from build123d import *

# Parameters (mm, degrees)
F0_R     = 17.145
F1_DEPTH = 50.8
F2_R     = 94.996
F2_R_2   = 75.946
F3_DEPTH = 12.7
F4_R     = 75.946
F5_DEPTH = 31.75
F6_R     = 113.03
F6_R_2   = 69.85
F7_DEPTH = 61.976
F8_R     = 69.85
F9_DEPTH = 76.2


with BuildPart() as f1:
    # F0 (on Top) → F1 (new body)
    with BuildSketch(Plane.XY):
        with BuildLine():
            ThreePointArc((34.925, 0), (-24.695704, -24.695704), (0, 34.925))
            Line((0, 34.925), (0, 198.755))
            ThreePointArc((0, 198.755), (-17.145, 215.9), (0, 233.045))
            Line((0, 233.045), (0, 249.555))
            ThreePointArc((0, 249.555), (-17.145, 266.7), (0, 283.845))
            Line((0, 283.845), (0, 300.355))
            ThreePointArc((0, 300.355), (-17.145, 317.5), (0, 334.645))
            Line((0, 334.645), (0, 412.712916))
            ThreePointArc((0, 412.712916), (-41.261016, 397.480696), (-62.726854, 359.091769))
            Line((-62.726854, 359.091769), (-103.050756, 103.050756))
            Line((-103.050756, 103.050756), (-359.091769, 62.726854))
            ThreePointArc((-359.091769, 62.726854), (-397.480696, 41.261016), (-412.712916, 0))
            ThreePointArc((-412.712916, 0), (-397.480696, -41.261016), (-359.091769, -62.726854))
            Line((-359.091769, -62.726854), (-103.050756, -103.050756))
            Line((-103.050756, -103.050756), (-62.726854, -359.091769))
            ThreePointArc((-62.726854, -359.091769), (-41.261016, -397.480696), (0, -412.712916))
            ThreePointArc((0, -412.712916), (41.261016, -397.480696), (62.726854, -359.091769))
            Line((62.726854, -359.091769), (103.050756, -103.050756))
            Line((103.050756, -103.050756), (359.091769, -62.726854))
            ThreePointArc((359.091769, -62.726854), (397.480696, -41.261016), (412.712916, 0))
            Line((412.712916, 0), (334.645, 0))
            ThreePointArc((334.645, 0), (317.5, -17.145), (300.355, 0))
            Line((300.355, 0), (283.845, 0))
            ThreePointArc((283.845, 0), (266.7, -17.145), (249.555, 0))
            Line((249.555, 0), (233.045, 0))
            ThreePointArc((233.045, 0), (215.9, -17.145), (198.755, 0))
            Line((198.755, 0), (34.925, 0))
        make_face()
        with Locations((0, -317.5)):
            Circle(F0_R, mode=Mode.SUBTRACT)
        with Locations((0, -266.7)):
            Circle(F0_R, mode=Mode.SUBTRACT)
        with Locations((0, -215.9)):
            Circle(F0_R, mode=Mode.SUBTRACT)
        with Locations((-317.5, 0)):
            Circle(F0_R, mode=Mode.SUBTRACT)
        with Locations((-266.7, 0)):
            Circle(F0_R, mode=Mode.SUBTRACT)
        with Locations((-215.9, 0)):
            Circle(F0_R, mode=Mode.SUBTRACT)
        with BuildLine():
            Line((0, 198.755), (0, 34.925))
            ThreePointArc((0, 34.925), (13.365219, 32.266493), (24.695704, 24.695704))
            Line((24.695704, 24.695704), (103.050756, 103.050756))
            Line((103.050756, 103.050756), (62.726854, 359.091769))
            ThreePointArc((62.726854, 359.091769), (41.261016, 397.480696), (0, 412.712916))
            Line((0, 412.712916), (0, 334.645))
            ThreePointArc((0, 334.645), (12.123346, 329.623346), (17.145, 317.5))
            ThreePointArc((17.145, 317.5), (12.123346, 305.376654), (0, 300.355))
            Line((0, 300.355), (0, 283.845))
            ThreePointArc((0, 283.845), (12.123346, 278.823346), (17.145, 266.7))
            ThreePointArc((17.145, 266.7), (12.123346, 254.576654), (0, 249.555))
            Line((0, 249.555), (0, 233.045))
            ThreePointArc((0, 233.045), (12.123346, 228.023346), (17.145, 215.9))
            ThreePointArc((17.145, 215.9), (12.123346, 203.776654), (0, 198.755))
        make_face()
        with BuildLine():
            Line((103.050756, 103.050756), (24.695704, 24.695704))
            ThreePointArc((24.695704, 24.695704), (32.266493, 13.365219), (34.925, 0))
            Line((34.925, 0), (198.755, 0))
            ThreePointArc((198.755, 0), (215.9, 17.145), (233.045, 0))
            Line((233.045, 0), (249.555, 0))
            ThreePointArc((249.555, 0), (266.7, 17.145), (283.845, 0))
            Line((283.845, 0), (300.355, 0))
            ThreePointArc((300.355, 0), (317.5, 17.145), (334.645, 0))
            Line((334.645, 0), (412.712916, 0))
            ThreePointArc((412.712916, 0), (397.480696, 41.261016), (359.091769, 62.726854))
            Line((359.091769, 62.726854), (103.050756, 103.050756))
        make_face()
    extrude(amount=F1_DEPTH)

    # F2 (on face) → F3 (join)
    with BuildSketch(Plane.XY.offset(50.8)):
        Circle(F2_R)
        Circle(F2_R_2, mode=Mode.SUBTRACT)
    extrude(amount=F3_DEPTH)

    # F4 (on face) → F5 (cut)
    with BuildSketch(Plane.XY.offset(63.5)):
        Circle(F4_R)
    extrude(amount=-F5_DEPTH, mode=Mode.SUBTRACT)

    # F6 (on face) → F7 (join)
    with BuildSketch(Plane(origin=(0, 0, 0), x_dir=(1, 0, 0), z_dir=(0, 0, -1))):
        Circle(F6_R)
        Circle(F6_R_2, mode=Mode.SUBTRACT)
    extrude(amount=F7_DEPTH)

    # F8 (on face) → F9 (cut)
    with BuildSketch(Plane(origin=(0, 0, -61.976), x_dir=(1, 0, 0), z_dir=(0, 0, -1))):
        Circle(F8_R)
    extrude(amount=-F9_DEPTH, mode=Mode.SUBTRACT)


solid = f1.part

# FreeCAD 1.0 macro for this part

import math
import FreeCAD as App
import Part
import Sketcher
from FreeCAD import Vector
Q = App.Units.Quantity

doc = App.newDocument("Part")
params = doc.addObject("Spreadsheet::Sheet", "Params")
for row, (alias, value) in enumerate([
    ("sketch1_radius", "2.4999999 in"),
    ("sketch1_diameter", "1.35 in"),
    ("sketch1_radius2", "1.375 in"),
    ("pad1_length", "2 in"),
    ("sketch2_diameter", "7.48 in"),
    ("sketch2_diameter2", "5.98 in"),
    ("pad2_length", "0.5 in"),
    ("sketch3_diameter", "5.98 in"),
    ("pocket1_length", "1.25 in"),
    ("sketch4_diameter", "8.9 in"),
    ("sketch4_diameter2", "5.5 in"),
    ("pad3_length", "2.44 in"),
    ("sketch5_diameter", "5.5 in"),
    ("pocket2_length", "3 in"),
], start=1):
    params.set(f"A{row}", alias)
    params.set(f"B{row}", "=" + value)
    params.setAlias(f"B{row}", alias)

body = doc.addObject("PartDesign::Body", "Body")

# Sketch on XY plane
sketch1 = doc.addObject("Sketcher::SketchObject", "Sketch")
body.addObject(sketch1)
sketch1.AttachmentSupport = (doc.XY_Plane, [""])
sketch1.MapMode = "FlatFace"
sketch1.addGeometry(Part.LineSegment(Vector(103, 103, 0), Vector(63, 359, 0)), False)
sketch1.addGeometry(Part.ArcOfCircle(Part.Circle(Vector(0, 349, 0), Vector(0, 0, 1), 63), math.radians(9), math.radians(90)), False)
sketch1.addGeometry(Part.ArcOfCircle(Part.Circle(Vector(0, 349, 0), Vector(0, 0, 1), 63), math.radians(90), math.radians(171)), False)
sketch1.addGeometry(Part.LineSegment(Vector(-63, 359, 0), Vector(-103, 103, 0)), False)
sketch1.addGeometry(Part.LineSegment(Vector(-103, 103, 0), Vector(-359, 63, 0)), False)
sketch1.addGeometry(Part.ArcOfCircle(Part.Circle(Vector(-349, 0, 0), Vector(0, 0, 1), 63), math.radians(99), math.radians(180)), False)
sketch1.addGeometry(Part.ArcOfCircle(Part.Circle(Vector(-349, 0, 0), Vector(0, 0, 1), 63), math.radians(180), math.radians(261)), False)
sketch1.addGeometry(Part.LineSegment(Vector(-359, -63, 0), Vector(-103, -103, 0)), False)
sketch1.addGeometry(Part.LineSegment(Vector(-103, -103, 0), Vector(-63, -359, 0)), False)
sketch1.addGeometry(Part.ArcOfCircle(Part.Circle(Vector(0, -349, 0), Vector(0, 0, 1), 63), math.radians(-171), math.radians(-90)), False)
sketch1.addGeometry(Part.ArcOfCircle(Part.Circle(Vector(0, -349, 0), Vector(0, 0, 1), 63), math.radians(-90), math.radians(-9)), False)
sketch1.addGeometry(Part.LineSegment(Vector(63, -359, 0), Vector(103, -103, 0)), False)
sketch1.addGeometry(Part.LineSegment(Vector(103, -103, 0), Vector(359, -63, 0)), False)
sketch1.addGeometry(Part.ArcOfCircle(Part.Circle(Vector(349, 0, 0), Vector(0, 0, 1), 63), math.radians(-81), math.radians(0)), False)
sketch1.addGeometry(Part.ArcOfCircle(Part.Circle(Vector(349, 0, 0), Vector(0, 0, 1), 63), math.radians(0), math.radians(81)), False)
sketch1.addGeometry(Part.LineSegment(Vector(359, 63, 0), Vector(103, 103, 0)), False)
sketch1.addGeometry(Part.ArcOfCircle(Part.Circle(Vector(0, 0, 0), Vector(0, 0, 1), 35), math.radians(90), math.radians(360)), False)
sketch1.addGeometry(Part.ArcOfCircle(Part.Circle(Vector(0, 0, 0), Vector(0, 0, 1), 35), math.radians(45), math.radians(90)), False)
sketch1.addGeometry(Part.ArcOfCircle(Part.Circle(Vector(0, 0, 0), Vector(0, 0, 1), 35), math.radians(0), math.radians(45)), False)
sketch1.addGeometry(Part.Circle(Vector(318, 0, 0), Vector(0, 0, 1), 17), False)
sketch1.addGeometry(Part.Circle(Vector(267, 0, 0), Vector(0, 0, 1), 17), False)
sketch1.addGeometry(Part.Circle(Vector(216, 0, 0), Vector(0, 0, 1), 17), False)
sketch1.addGeometry(Part.ArcOfCircle(Part.Circle(Vector(0, 216, 0), Vector(0, 0, 1), 17), math.radians(90), math.radians(270)), False)
sketch1.addGeometry(Part.ArcOfCircle(Part.Circle(Vector(0, 216, 0), Vector(0, 0, 1), 17), math.radians(0), math.radians(90)), False)
sketch1.addGeometry(Part.ArcOfCircle(Part.Circle(Vector(0, 216, 0), Vector(0, 0, 1), 17), math.radians(-90), math.radians(0)), False)
sketch1.addGeometry(Part.ArcOfCircle(Part.Circle(Vector(0, 267, 0), Vector(0, 0, 1), 17), math.radians(90), math.radians(270)), False)
sketch1.addGeometry(Part.ArcOfCircle(Part.Circle(Vector(0, 267, 0), Vector(0, 0, 1), 17), math.radians(0), math.radians(90)), False)
sketch1.addGeometry(Part.ArcOfCircle(Part.Circle(Vector(0, 267, 0), Vector(0, 0, 1), 17), math.radians(-90), math.radians(0)), False)
sketch1.addGeometry(Part.ArcOfCircle(Part.Circle(Vector(0, 318, 0), Vector(0, 0, 1), 17), math.radians(90), math.radians(270)), False)
sketch1.addGeometry(Part.ArcOfCircle(Part.Circle(Vector(0, 318, 0), Vector(0, 0, 1), 17), math.radians(0), math.radians(90)), False)
sketch1.addGeometry(Part.ArcOfCircle(Part.Circle(Vector(0, 317, 0), Vector(0, 0, 1), 17), math.radians(-90), math.radians(0)), False)
sketch1.addGeometry(Part.Circle(Vector(0, -318, 0), Vector(0, 0, 1), 17), False)
sketch1.addGeometry(Part.Circle(Vector(0, -267, 0), Vector(0, 0, 1), 17), False)
sketch1.addGeometry(Part.Circle(Vector(0, -216, 0), Vector(0, 0, 1), 17), False)
sketch1.addGeometry(Part.Circle(Vector(-318, 0, 0), Vector(0, 0, 1), 17), False)
sketch1.addGeometry(Part.Circle(Vector(-267, 0, 0), Vector(0, 0, 1), 17), False)
sketch1.addGeometry(Part.Circle(Vector(-216, 0, 0), Vector(0, 0, 1), 17), False)
sketch1.addConstraint(Sketcher.Constraint("Tangent", 0, 2, 1, 1))
sketch1.addConstraint(Sketcher.Constraint("Tangent", 1, 2, 2, 1))
sketch1.addConstraint(Sketcher.Constraint("Tangent", 2, 2, 3, 1))
sketch1.addConstraint(Sketcher.Constraint("Coincident", 3, 2, 4, 1))
sketch1.addConstraint(Sketcher.Constraint("Tangent", 4, 2, 5, 1))
sketch1.addConstraint(Sketcher.Constraint("Tangent", 5, 2, 6, 1))
sketch1.addConstraint(Sketcher.Constraint("Tangent", 6, 2, 7, 1))
sketch1.addConstraint(Sketcher.Constraint("Coincident", 7, 2, 8, 1))
sketch1.addConstraint(Sketcher.Constraint("Tangent", 8, 2, 9, 1))
sketch1.addConstraint(Sketcher.Constraint("Tangent", 9, 2, 10, 1))
sketch1.addConstraint(Sketcher.Constraint("Tangent", 10, 2, 11, 1))
sketch1.addConstraint(Sketcher.Constraint("Coincident", 11, 2, 12, 1))
sketch1.addConstraint(Sketcher.Constraint("Tangent", 12, 2, 13, 1))
sketch1.addConstraint(Sketcher.Constraint("Tangent", 13, 2, 14, 1))
sketch1.addConstraint(Sketcher.Constraint("Tangent", 14, 2, 15, 1))
sketch1.addConstraint(Sketcher.Constraint("Coincident", 15, 2, 0, 1))
sketch1.addConstraint(Sketcher.Constraint("Tangent", 16, 1, 17, 2))
sketch1.addConstraint(Sketcher.Constraint("Tangent", 17, 1, 18, 2))
sketch1.addConstraint(Sketcher.Constraint("Tangent", 18, 1, 16, 2))
sketch1.addConstraint(Sketcher.Constraint("Tangent", 22, 1, 23, 2))
sketch1.addConstraint(Sketcher.Constraint("Tangent", 23, 1, 24, 2))
sketch1.addConstraint(Sketcher.Constraint("Tangent", 24, 1, 22, 2))
sketch1.addConstraint(Sketcher.Constraint("Tangent", 25, 1, 26, 2))
sketch1.addConstraint(Sketcher.Constraint("Tangent", 26, 1, 27, 2))
sketch1.addConstraint(Sketcher.Constraint("Tangent", 27, 1, 25, 2))
sketch1.addConstraint(Sketcher.Constraint("Tangent", 28, 1, 29, 2))
sketch1.addConstraint(Sketcher.Constraint("Tangent", 29, 1, 30, 2))
sketch1.addConstraint(Sketcher.Constraint("Tangent", 30, 1, 28, 2))
sketch1.addConstraint(Sketcher.Constraint("Coincident", 16, 3, -1, 1))
sketch1.addConstraint(Sketcher.Constraint("Equal", 1, 2))
sketch1.addConstraint(Sketcher.Constraint("Equal", 2, 5))
sketch1.addConstraint(Sketcher.Constraint("Equal", 5, 6))
sketch1.addConstraint(Sketcher.Constraint("Equal", 6, 9))
sketch1.addConstraint(Sketcher.Constraint("Equal", 9, 10))
sketch1.addConstraint(Sketcher.Constraint("Equal", 10, 13))
sketch1.addConstraint(Sketcher.Constraint("Equal", 13, 14))
sketch1.addConstraint(Sketcher.Constraint("Equal", 19, 20))
sketch1.addConstraint(Sketcher.Constraint("Equal", 20, 21))
sketch1.addConstraint(Sketcher.Constraint("Equal", 21, 22))
sketch1.addConstraint(Sketcher.Constraint("Equal", 24, 25))
sketch1.addConstraint(Sketcher.Constraint("Equal", 27, 28))
sketch1.addConstraint(Sketcher.Constraint("Equal", 30, 31))
sketch1.addConstraint(Sketcher.Constraint("Equal", 31, 32))
sketch1.addConstraint(Sketcher.Constraint("Equal", 32, 33))
sketch1.addConstraint(Sketcher.Constraint("Equal", 33, 34))
sketch1.addConstraint(Sketcher.Constraint("Equal", 34, 35))
sketch1.addConstraint(Sketcher.Constraint("Equal", 35, 36))
sketch1.addConstraint(Sketcher.Constraint("Symmetric", 1, 3, 9, 3, -1, 1))
sketch1.addConstraint(Sketcher.Constraint("Symmetric", 5, 3, 13, 3, -1, 1))
sketch1.addConstraint(Sketcher.Constraint("Symmetric", 28, 3, 31, 3, -1, 1))
sketch1.addConstraint(Sketcher.Constraint("Symmetric", 25, 3, 32, 3, -1, 1))
sketch1.addConstraint(Sketcher.Constraint("Symmetric", 22, 3, 33, 3, -1, 1))
sketch1.addConstraint(Sketcher.Constraint("Symmetric", 19, 3, 34, 3, -1, 1))
sketch1.addConstraint(Sketcher.Constraint("Symmetric", 20, 3, 35, 3, -1, 1))
sketch1.addConstraint(Sketcher.Constraint("Symmetric", 21, 3, 36, 3, -1, 1))
sketch1.addConstraint(Sketcher.Constraint("Symmetric", 3, 2, 11, 2, -1, 1))
sketch1.addConstraint(Sketcher.Constraint("Symmetric", 7, 2, 15, 2, -1, 1))
sketch1.addConstraint(Sketcher.Constraint("Symmetric", 0, 2, 2, 2, -2))
sketch1.addConstraint(Sketcher.Constraint("Symmetric", 6, 2, 12, 2, -2))
sketch1.addConstraint(Sketcher.Constraint("PointOnObject", 19, 3, -1))
sketch1.addConstraint(Sketcher.Constraint("PointOnObject", 20, 3, -1))
sketch1.addConstraint(Sketcher.Constraint("PointOnObject", 21, 3, -1))
sketch1.addConstraint(Sketcher.Constraint("PointOnObject", 22, 3, -2))
sketch1.addConstraint(Sketcher.Constraint("PointOnObject", 25, 3, -2))
sketch1.addConstraint(Sketcher.Constraint("PointOnObject", 28, 3, -2))
sketch1.addConstraint(Sketcher.Constraint("PointOnObject", 1, 2, -2))
sketch1.addConstraint(Sketcher.Constraint("PointOnObject", 5, 2, -1))
sketch1.addConstraint(Sketcher.Constraint("PointOnObject", 9, 2, -2))
sketch1.addConstraint(Sketcher.Constraint("PointOnObject", 13, 2, -1))
sketch1.addConstraint(Sketcher.Constraint("PointOnObject", 16, 1, -2))
sketch1.addConstraint(Sketcher.Constraint("PointOnObject", 18, 1, -1))
sketch1.addConstraint(Sketcher.Constraint("PointOnObject", 22, 1, -2))
sketch1.addConstraint(Sketcher.Constraint("PointOnObject", 24, 1, -2))
sketch1.addConstraint(Sketcher.Constraint("PointOnObject", 25, 1, -2))
sketch1.addConstraint(Sketcher.Constraint("PointOnObject", 27, 1, -2))
sketch1.addConstraint(Sketcher.Constraint("PointOnObject", 28, 1, -2))
sketch1.addConstraint(Sketcher.Constraint("PointOnObject", 30, 1, -2))
sketch1.addConstraint(Sketcher.Constraint("Perpendicular", 0, 4))
sketch1.addConstraint(Sketcher.Constraint("Horizontal", 24, 3, 23, 1))
sketch1.addConstraint(Sketcher.Constraint("Horizontal", 27, 3, 26, 1))
sketch1.addConstraint(Sketcher.Constraint("Horizontal", 30, 3, 29, 1))
sketch1.addConstraint(Sketcher.Constraint("Equal", 3, 4))
sketch1.addConstraint(Sketcher.Constraint("Radius", 1, Q("2.4999999 in")))
sketch1.addConstraint(Sketcher.Constraint("Diameter", 19, Q("1.35 in")))
sketch1.addConstraint(Sketcher.Constraint("Radius", 16, Q("1.375 in")))
sketch1.addConstraint(Sketcher.Constraint("DistanceX", 20, 3, 19, 3, Q("2 in")))
sketch1.addConstraint(Sketcher.Constraint("DistanceX", 21, 3, 20, 3, Q("2 in")))
sketch1.addConstraint(Sketcher.Constraint("DistanceY", 23, 3, 25, 3, Q("2 in")))
sketch1.addConstraint(Sketcher.Constraint("DistanceY", 26, 3, 28, 3, Q("2 in")))
sketch1.addConstraint(Sketcher.Constraint("DistanceX", -1, 1, 19, 3, Q("12.5 in")))
sketch1.addConstraint(Sketcher.Constraint("DistanceY", -1, 1, 22, 3, Q("8.5 in")))
sketch1.addConstraint(Sketcher.Constraint("Angle", 0, Q("98.95 deg")))
sketch1.addConstraint(Sketcher.Constraint("DistanceX", 17, 3, 17, 1, Q("24.695702 mm")))
sketch1.addConstraint(Sketcher.Constraint("Distance", 0, Q("259.19687 mm")))
sketch1.setExpression("Constraints[82]", "Params.sketch1_radius")
sketch1.setExpression("Constraints[83]", "Params.sketch1_diameter")
sketch1.setExpression("Constraints[84]", "Params.sketch1_radius2")
pad1 = doc.addObject("PartDesign::Pad", "Pad")
body.addObject(pad1)
pad1.Profile = sketch1
pad1.setExpression("Length", "Params.pad1_length")

# Sketch on XY plane
sketch2 = doc.addObject("Sketcher::SketchObject", "Sketch001")
body.addObject(sketch2)
sketch2.AttachmentSupport = (doc.XY_Plane, [""])
sketch2.MapMode = "FlatFace"
sketch2.AttachmentOffset = App.Placement(Vector(0, 0, 2 * 25.4), App.Rotation())
sketch2.addGeometry(Part.Circle(Vector(0, 0, 0), Vector(0, 0, 1), 95), False)
sketch2.addGeometry(Part.Circle(Vector(0, 0, 0), Vector(0, 0, 1), 76), False)
sketch2.addConstraint(Sketcher.Constraint("Coincident", 0, 3, -1, 1))
sketch2.addConstraint(Sketcher.Constraint("Coincident", 1, 3, -1, 1))
sketch2.addConstraint(Sketcher.Constraint("Diameter", 0, Q("7.48 in")))
sketch2.addConstraint(Sketcher.Constraint("Diameter", 1, Q("5.98 in")))
sketch2.setExpression("Constraints[2]", "Params.sketch2_diameter")
sketch2.setExpression("Constraints[3]", "Params.sketch2_diameter2")
pad2 = doc.addObject("PartDesign::Pad", "Pad001")
body.addObject(pad2)
pad2.Profile = sketch2
pad2.setExpression("Length", "Params.pad2_length")

# Sketch on XY plane
sketch3 = doc.addObject("Sketcher::SketchObject", "Sketch002")
body.addObject(sketch3)
sketch3.AttachmentSupport = (doc.XY_Plane, [""])
sketch3.MapMode = "FlatFace"
sketch3.AttachmentOffset = App.Placement(Vector(0, 0, 2.5 * 25.4), App.Rotation())
sketch3.addGeometry(Part.Circle(Vector(0, 0, 0), Vector(0, 0, 1), 76), False)
sketch3.addConstraint(Sketcher.Constraint("Coincident", 0, 3, -1, 1))
sketch3.addConstraint(Sketcher.Constraint("Diameter", 0, Q("5.98 in")))
sketch3.setExpression("Constraints[1]", "Params.sketch3_diameter")
pocket1 = doc.addObject("PartDesign::Pocket", "Pocket")
body.addObject(pocket1)
pocket1.Profile = sketch3
pocket1.setExpression("Length", "Params.pocket1_length")

# Sketch on XY plane
sketch4 = doc.addObject("Sketcher::SketchObject", "Sketch003")
body.addObject(sketch4)
sketch4.AttachmentSupport = (doc.XY_Plane, [""])
sketch4.MapMode = "FlatFace"
sketch4.addGeometry(Part.Circle(Vector(0, 0, 0), Vector(0, 0, 1), 113), False)
sketch4.addGeometry(Part.Circle(Vector(0, 0, 0), Vector(0, 0, 1), 70), False)
sketch4.addConstraint(Sketcher.Constraint("Coincident", 0, 3, -1, 1))
sketch4.addConstraint(Sketcher.Constraint("Coincident", 1, 3, -1, 1))
sketch4.addConstraint(Sketcher.Constraint("Diameter", 0, Q("8.9 in")))
sketch4.addConstraint(Sketcher.Constraint("Diameter", 1, Q("5.5 in")))
sketch4.setExpression("Constraints[2]", "Params.sketch4_diameter")
sketch4.setExpression("Constraints[3]", "Params.sketch4_diameter2")
pad3 = doc.addObject("PartDesign::Pad", "Pad002")
body.addObject(pad3)
pad3.Profile = sketch4
pad3.setExpression("Length", "Params.pad3_length")
pad3.Reversed = True

# Sketch on XY plane
sketch5 = doc.addObject("Sketcher::SketchObject", "Sketch004")
body.addObject(sketch5)
sketch5.AttachmentSupport = (doc.XY_Plane, [""])
sketch5.MapMode = "FlatFace"
sketch5.AttachmentOffset = App.Placement(Vector(0, 0, -2.44 * 25.4), App.Rotation())
sketch5.addGeometry(Part.Circle(Vector(0, 0, 0), Vector(0, 0, 1), 70), False)
sketch5.addConstraint(Sketcher.Constraint("Coincident", 0, 3, -1, 1))
sketch5.addConstraint(Sketcher.Constraint("Diameter", 0, Q("5.5 in")))
sketch5.setExpression("Constraints[1]", "Params.sketch5_diameter")
pocket2 = doc.addObject("PartDesign::Pocket", "Pocket001")
body.addObject(pocket2)
pocket2.Profile = sketch5
pocket2.setExpression("Length", "Params.pocket2_length")
pocket2.Reversed = True

doc.recompute()
